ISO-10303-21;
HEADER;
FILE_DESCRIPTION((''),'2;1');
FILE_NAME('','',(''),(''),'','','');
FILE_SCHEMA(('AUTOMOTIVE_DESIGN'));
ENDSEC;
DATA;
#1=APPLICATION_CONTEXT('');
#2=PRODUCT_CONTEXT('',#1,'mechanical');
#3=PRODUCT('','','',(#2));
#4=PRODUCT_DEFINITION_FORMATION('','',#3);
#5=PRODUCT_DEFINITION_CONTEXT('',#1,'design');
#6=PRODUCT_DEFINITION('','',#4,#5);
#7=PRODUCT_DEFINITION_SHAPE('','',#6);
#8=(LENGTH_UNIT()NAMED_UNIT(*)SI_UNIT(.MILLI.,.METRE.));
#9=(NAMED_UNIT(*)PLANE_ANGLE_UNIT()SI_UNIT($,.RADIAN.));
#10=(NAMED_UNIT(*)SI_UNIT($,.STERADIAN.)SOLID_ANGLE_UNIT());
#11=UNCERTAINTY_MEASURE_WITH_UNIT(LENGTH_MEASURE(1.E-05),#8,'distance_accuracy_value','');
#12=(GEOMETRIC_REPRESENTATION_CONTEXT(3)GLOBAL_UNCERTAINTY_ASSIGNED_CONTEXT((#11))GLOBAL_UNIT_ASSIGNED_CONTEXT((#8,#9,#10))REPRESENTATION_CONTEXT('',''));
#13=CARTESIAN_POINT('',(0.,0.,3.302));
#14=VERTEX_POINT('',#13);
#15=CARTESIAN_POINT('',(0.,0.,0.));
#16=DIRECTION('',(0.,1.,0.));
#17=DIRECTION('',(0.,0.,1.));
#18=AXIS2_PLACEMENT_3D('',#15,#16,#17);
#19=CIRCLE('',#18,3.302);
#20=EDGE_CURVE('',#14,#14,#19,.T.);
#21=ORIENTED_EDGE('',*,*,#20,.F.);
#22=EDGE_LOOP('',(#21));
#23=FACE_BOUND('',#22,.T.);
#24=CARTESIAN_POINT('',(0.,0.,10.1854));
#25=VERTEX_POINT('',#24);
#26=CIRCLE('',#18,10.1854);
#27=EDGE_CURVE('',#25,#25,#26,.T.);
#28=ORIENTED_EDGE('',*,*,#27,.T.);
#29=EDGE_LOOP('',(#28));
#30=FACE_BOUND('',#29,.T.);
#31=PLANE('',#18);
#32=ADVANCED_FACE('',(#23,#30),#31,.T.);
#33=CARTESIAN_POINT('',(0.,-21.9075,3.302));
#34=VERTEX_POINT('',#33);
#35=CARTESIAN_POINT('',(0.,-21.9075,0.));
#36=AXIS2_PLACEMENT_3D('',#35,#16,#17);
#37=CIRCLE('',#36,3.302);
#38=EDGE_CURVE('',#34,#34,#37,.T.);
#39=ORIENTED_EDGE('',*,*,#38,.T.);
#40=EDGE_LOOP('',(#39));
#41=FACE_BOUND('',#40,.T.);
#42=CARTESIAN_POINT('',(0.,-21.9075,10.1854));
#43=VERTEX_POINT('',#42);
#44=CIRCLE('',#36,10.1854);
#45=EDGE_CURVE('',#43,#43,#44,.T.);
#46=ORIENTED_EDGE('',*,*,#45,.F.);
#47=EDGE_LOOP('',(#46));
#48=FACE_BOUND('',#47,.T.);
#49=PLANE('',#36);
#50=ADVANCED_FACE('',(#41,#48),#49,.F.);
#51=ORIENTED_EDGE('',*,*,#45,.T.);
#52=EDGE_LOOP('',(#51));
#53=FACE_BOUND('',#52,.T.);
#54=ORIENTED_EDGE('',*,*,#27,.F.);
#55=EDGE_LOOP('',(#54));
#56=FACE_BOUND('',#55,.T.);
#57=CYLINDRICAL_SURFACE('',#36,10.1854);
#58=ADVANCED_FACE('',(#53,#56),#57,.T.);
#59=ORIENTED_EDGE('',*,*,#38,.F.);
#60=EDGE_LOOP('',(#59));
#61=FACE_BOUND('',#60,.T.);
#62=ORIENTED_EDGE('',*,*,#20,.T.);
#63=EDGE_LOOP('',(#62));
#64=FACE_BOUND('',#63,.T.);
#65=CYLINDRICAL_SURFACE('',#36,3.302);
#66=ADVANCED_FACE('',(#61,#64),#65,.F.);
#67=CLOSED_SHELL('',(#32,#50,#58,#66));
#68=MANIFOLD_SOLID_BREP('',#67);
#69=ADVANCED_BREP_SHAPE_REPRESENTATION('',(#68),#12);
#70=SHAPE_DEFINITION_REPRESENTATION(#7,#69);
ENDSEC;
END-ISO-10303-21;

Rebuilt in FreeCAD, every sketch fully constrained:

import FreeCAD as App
import Part
import Sketcher
from FreeCAD import Vector
Q = App.Units.Quantity

doc = App.newDocument("Part")
params = doc.addObject("Spreadsheet::Sheet", "Params")
for row, (alias, value) in enumerate([
    ("sketch1_diameter", "0.26 in"),
    ("sketch1_diameter2", "0.802 in"),
    ("pad1_length", "0.8625 in"),
], start=1):
    params.set(f"A{row}", alias)
    params.set(f"B{row}", "=" + value)
    params.setAlias(f"B{row}", alias)

body = doc.addObject("PartDesign::Body", "Body")

sketch1 = body.newObject("Sketcher::SketchObject", "Sketch")
sketch1.AttachmentSupport = (doc.getObject("XZ_Plane"), [""])
sketch1.MapMode = "FlatFace"
sketch1.addGeometry([
    Part.Circle(Vector(0, 0, 0), Vector(0, 0, 1), 10.1854),
    Part.Circle(Vector(0, 0, 0), Vector(0, 0, 1), 3.302),
], False)
sketch1.addConstraint([
    Sketcher.Constraint("Coincident", 0, 3, -1, 1),
    Sketcher.Constraint("Coincident", 1, 3, -1, 1),
    Sketcher.Constraint("Diameter", 1, Q("0.26 in")),
    Sketcher.Constraint("Diameter", 0, Q("0.802 in")),
])
sketch1.setExpression("Constraints[2]", "Params.sketch1_diameter")
sketch1.setExpression("Constraints[3]", "Params.sketch1_diameter2")
pad1 = body.newObject("PartDesign::Pad", "Pad")
pad1.Profile = sketch1
pad1.setExpression("Length", "Params.pad1_length")

doc.recompute()
